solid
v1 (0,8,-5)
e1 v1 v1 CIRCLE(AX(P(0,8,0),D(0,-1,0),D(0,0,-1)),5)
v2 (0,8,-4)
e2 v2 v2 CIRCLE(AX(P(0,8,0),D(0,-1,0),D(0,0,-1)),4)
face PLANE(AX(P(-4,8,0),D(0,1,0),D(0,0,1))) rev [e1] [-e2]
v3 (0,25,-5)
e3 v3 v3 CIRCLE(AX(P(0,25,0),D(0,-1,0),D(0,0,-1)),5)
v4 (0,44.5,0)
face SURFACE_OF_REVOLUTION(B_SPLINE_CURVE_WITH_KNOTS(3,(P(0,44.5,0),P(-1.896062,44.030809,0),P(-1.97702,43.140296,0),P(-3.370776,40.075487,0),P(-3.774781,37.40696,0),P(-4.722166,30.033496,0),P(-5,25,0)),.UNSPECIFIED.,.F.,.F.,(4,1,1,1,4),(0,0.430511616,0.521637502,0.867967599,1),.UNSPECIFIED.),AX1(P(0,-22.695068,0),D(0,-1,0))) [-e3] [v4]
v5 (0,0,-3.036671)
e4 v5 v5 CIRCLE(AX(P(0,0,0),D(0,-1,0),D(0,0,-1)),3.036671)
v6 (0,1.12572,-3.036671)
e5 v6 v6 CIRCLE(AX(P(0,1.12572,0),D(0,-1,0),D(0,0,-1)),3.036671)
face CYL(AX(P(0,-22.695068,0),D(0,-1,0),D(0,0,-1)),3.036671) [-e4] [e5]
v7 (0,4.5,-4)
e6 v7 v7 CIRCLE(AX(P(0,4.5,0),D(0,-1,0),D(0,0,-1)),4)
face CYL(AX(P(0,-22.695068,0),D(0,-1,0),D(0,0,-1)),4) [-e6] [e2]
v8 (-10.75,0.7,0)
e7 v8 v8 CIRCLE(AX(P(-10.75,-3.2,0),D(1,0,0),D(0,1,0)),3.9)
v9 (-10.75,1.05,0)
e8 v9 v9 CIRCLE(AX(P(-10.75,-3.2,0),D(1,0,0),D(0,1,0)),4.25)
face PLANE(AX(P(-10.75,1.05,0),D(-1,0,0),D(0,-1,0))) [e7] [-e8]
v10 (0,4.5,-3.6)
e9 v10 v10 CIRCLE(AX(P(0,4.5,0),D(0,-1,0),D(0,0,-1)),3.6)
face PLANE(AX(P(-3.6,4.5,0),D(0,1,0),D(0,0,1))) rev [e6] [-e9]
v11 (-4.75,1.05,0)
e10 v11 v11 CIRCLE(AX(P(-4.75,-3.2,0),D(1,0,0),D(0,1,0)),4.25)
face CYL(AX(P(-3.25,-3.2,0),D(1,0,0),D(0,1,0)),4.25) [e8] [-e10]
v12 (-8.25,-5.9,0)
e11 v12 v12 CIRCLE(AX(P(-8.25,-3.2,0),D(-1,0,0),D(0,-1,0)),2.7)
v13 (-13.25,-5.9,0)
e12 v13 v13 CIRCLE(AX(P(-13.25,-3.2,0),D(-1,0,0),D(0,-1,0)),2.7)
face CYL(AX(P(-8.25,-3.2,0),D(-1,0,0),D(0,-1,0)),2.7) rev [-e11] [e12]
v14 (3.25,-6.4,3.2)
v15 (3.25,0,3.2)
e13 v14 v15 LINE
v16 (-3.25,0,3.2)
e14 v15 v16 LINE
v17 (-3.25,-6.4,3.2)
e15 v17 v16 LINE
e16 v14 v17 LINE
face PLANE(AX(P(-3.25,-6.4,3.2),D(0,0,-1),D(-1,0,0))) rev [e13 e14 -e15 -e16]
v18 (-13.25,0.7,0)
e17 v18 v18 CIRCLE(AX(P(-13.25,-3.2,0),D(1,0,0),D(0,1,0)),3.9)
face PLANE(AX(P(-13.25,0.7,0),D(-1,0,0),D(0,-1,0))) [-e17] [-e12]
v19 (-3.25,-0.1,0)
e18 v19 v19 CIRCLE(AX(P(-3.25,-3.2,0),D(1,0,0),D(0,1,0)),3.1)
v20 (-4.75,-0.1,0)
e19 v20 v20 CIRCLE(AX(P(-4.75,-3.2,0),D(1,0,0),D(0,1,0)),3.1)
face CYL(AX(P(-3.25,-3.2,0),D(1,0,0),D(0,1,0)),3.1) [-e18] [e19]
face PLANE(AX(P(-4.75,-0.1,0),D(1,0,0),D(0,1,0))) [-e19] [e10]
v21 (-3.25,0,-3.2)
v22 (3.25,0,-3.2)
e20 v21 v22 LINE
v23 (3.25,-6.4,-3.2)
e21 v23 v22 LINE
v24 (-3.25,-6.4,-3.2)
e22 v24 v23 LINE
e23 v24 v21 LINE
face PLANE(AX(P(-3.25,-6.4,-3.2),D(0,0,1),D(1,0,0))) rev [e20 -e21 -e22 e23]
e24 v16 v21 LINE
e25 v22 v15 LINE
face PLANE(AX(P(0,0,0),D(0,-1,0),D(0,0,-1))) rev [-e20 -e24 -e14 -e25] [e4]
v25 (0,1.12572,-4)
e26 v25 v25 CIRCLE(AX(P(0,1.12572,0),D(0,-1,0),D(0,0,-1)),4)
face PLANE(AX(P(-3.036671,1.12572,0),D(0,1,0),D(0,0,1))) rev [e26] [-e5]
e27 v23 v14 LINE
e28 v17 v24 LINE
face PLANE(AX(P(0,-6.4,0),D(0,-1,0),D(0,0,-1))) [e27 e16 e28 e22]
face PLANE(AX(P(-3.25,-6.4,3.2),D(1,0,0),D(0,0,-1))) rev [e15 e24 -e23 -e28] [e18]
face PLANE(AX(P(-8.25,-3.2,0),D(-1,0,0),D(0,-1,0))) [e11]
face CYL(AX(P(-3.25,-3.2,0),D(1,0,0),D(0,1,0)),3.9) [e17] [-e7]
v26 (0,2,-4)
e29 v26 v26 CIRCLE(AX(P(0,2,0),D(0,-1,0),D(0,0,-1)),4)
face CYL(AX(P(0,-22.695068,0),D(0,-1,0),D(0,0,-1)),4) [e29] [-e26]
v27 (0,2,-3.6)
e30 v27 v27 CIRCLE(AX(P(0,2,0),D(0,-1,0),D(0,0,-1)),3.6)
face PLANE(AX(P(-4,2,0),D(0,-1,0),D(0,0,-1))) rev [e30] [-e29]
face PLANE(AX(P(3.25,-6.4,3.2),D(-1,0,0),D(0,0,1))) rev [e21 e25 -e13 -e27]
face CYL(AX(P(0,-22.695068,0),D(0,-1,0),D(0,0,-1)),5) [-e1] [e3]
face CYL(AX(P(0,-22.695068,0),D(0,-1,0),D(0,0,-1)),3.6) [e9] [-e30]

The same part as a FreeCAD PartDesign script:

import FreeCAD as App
import Part
import Sketcher

doc = App.newDocument("Part")
params = doc.addObject("Spreadsheet::Sheet", "Params")
for row, (alias, value) in enumerate([
    ("sketch1_width", "1 mm"),
    ("sketch1_height", "17 mm"),
    ("sketch1_width2", "0.4 mm"),
    ("sketch1_height2", "3.5 mm"),
    ("sketch1_height3", "2.5 mm"),
    ("revolution_angle", "360 deg"),
    ("sketch2_width", "6.5 mm"),
    ("sketch2_height", "6.4 mm"),
    ("pad1_length", "6.4 mm"),
    ("sketch3_width", "6 mm"),
    ("sketch3_width2", "10 mm"),
    ("sketch3_width3", "1.5 mm"),
    ("sketch3_height", "3.9 mm"),
    ("sketch3_height2", "3.1 mm"),
    ("revolution2_angle", "360 deg"),
    ("sketch4_diameter", "5.4 mm"),
    ("pocket1_length", "5 mm"),
], start=1):
    params.set(f"A{row}", alias)
    params.set(f"B{row}", "=" + value)
    params.setAlias(f"B{row}", alias)

body = doc.addObject("PartDesign::Body", "Body")

# Sketch on XY plane
sketch1 = body.newObject("Sketcher::SketchObject", "Sketch")
sketch1.AttachmentSupport = (doc.getObject("XY_Plane"), [""])
sketch1.MapMode = "FlatFace"
sketch1.addGeometry([
    Part.LineSegment(App.Vector(-3.036671, 0, 0), App.Vector(0, 0, 0)),  # 0
    Part.LineSegment(App.Vector(0, 0, 0), App.Vector(0, 44.5, 0)),  # 1
    Part.BSplineCurve([App.Vector(-5, 25, 0), App.Vector(-4.722166, 30.033496, 0), App.Vector(-3.774781, 37.40696, 0), App.Vector(-3.370776, 40.075487, 0), App.Vector(-1.97702, 43.140296, 0), App.Vector(-1.896062, 44.030809, 0), App.Vector(0, 44.5, 0)], [4, 1, 1, 1, 4], [0, 0.132032401, 0.478362498, 0.569488384, 1], False, 3, [1, 1, 1, 1, 1, 1, 1], False),  # 2
    Part.LineSegment(App.Vector(-5, 25, 0), App.Vector(-5, 8, 0)),  # 3
    Part.LineSegment(App.Vector(-5, 8, 0), App.Vector(-4, 8, 0)),  # 4
    Part.LineSegment(App.Vector(-4, 8, 0), App.Vector(-4, 4.5, 0)),  # 5
    Part.LineSegment(App.Vector(-4, 4.5, 0), App.Vector(-3.6, 4.5, 0)),  # 6
    Part.LineSegment(App.Vector(-3.6, 4.5, 0), App.Vector(-3.6, 2, 0)),  # 7
    Part.LineSegment(App.Vector(-3.6, 2, 0), App.Vector(-4, 2, 0)),  # 8
    Part.LineSegment(App.Vector(-4, 2, 0), App.Vector(-4, 1.12572, 0)),  # 9
    Part.LineSegment(App.Vector(-4, 1.12572, 0), App.Vector(-3.036671, 1.12572, 0)),  # 10
    Part.LineSegment(App.Vector(-3.036671, 1.12572, 0), App.Vector(-3.036671, 0, 0)),  # 11
], False)
sketch1.addConstraint([
    Sketcher.Constraint("Block", 2),
    Sketcher.Constraint("Coincident", 0, 2, 1, 1),
    Sketcher.Constraint("Coincident", 1, 2, 2, 2),
    Sketcher.Constraint("Coincident", 2, 1, 3, 1),
    Sketcher.Constraint("Coincident", 3, 2, 4, 1),
    Sketcher.Constraint("Coincident", 4, 2, 5, 1),
    Sketcher.Constraint("Coincident", 5, 2, 6, 1),
    Sketcher.Constraint("Coincident", 6, 2, 7, 1),
    Sketcher.Constraint("Coincident", 7, 2, 8, 1),
    Sketcher.Constraint("Coincident", 8, 2, 9, 1),
    Sketcher.Constraint("Coincident", 9, 2, 10, 1),
    Sketcher.Constraint("Coincident", 10, 2, 11, 1),
    Sketcher.Constraint("Coincident", 11, 2, 0, 1),
    Sketcher.Constraint("Horizontal", 0),
    Sketcher.Constraint("Vertical", 1),
    Sketcher.Constraint("Vertical", 3),
    Sketcher.Constraint("Horizontal", 4),
    Sketcher.Constraint("Vertical", 5),
    Sketcher.Constraint("Horizontal", 6),
    Sketcher.Constraint("Vertical", 7),
    Sketcher.Constraint("Horizontal", 8),
    Sketcher.Constraint("Vertical", 9),
    Sketcher.Constraint("Horizontal", 10),
    Sketcher.Constraint("Vertical", 11),
    Sketcher.Constraint("PointOnObject", 11, 2, -1),
    Sketcher.Constraint("Vertical", 5, 2, 8, 2),
    Sketcher.Constraint("DistanceX", 4, 1, 4, 2, 1.0),
    Sketcher.Constraint("DistanceY", 3, 2, 3, 1, 17.0),
    Sketcher.Constraint("DistanceX", 6, 1, 6, 2, 0.4),
    Sketcher.Constraint("DistanceY", 5, 2, 5, 1, 3.5),
    Sketcher.Constraint("DistanceY", 7, 2, 7, 1, 2.5),
    Sketcher.Constraint("DistanceX", 0, 1, 0, 2, 3.036671),
    Sketcher.Constraint("DistanceY", 9, 2, 9, 1, 0.87428),
])
sketch1.setExpression("Constraints[26]", "Params.sketch1_width")
sketch1.setExpression("Constraints[27]", "Params.sketch1_height")
sketch1.setExpression("Constraints[28]", "Params.sketch1_width2")
sketch1.setExpression("Constraints[29]", "Params.sketch1_height2")
sketch1.setExpression("Constraints[30]", "Params.sketch1_height3")
revolution = body.newObject("PartDesign::Revolution", "Revolution")
revolution.Profile = sketch1
revolution.ReferenceAxis = (sketch1, ["V_Axis"])
revolution.setExpression("Angle", "Params.revolution_angle")

# Sketch on XZ plane
sketch2 = body.newObject("Sketcher::SketchObject", "Sketch001")
sketch2.AttachmentSupport = (doc.getObject("XZ_Plane"), [""])
sketch2.MapMode = "FlatFace"
sketch2.addGeometry([
    Part.LineSegment(App.Vector(-3, 3, 0), App.Vector(-3, -3, 0)),
    Part.LineSegment(App.Vector(-3, -3, 0), App.Vector(3, -3, 0)),
    Part.LineSegment(App.Vector(3, -3, 0), App.Vector(3, 3, 0)),
    Part.LineSegment(App.Vector(3, 3, 0), App.Vector(-3, 3, 0)),
], False)
sketch2.addConstraint([
    Sketcher.Constraint("Coincident", 0, 2, 1, 1),
    Sketcher.Constraint("Coincident", 1, 2, 2, 1),
    Sketcher.Constraint("Coincident", 2, 2, 3, 1),
    Sketcher.Constraint("Coincident", 3, 2, 0, 1),
    Sketcher.Constraint("Vertical", 0),
    Sketcher.Constraint("Horizontal", 1),
    Sketcher.Constraint("Vertical", 2),
    Sketcher.Constraint("Horizontal", 3),
    Sketcher.Constraint("Symmetric", 0, 2, 2, 2, -1, 1),
    Sketcher.Constraint("DistanceX", 1, 1, 1, 2, 6.5),
    Sketcher.Constraint("DistanceY", 0, 2, 0, 1, 6.4),
])
sketch2.setExpression("Constraints[9]", "Params.sketch2_width")
sketch2.setExpression("Constraints[10]", "Params.sketch2_height")
pad1 = body.newObject("PartDesign::Pad", "Pad")
pad1.Profile = sketch2
pad1.setExpression("Length", "Params.pad1_length")

# Sketch on XY plane
sketch3 = body.newObject("Sketcher::SketchObject", "Sketch002")
sketch3.AttachmentSupport = (doc.getObject("XY_Plane"), [""])
sketch3.MapMode = "FlatFace"
sketch3.addGeometry([
    Part.LineSegment(App.Vector(-3.25, -0.1, 0), App.Vector(-4.75, -0.1, 0)),  # 0
    Part.LineSegment(App.Vector(-4.75, -0.1, 0), App.Vector(-4.75, 1.05, 0)),  # 1
    Part.LineSegment(App.Vector(-4.75, 1.05, 0), App.Vector(-10.75, 1.05, 0)),  # 2
    Part.LineSegment(App.Vector(-10.75, 1.05, 0), App.Vector(-10.75, 0.7, 0)),  # 3
    Part.LineSegment(App.Vector(-10.75, 0.7, 0), App.Vector(-13.25, 0.7, 0)),  # 4
    Part.LineSegment(App.Vector(-13.25, 0.7, 0), App.Vector(-13.25, -3.2, 0)),  # 5
    Part.LineSegment(App.Vector(-13.25, -3.2, 0), App.Vector(-3.25, -3.2, 0)),  # 6
    Part.LineSegment(App.Vector(-3.25, -3.2, 0), App.Vector(-3.25, -0.1, 0)),  # 7
], False)
sketch3.addGeometry(Part.LineSegment(App.Vector(-3.25, -3.2, 0), App.Vector(-13.25, -3.2, 0)), True)  # axis
sketch3.addConstraint([
    Sketcher.Constraint("Coincident", 0, 2, 1, 1),
    Sketcher.Constraint("Coincident", 1, 2, 2, 1),
    Sketcher.Constraint("Coincident", 2, 2, 3, 1),
    Sketcher.Constraint("Coincident", 3, 2, 4, 1),
    Sketcher.Constraint("Coincident", 4, 2, 5, 1),
    Sketcher.Constraint("Coincident", 5, 2, 6, 1),
    Sketcher.Constraint("Coincident", 6, 2, 7, 1),
    Sketcher.Constraint("Coincident", 7, 2, 0, 1),
    Sketcher.Constraint("Horizontal", 0),
    Sketcher.Constraint("Vertical", 1),
    Sketcher.Constraint("Horizontal", 2),
    Sketcher.Constraint("Vertical", 3),
    Sketcher.Constraint("Horizontal", 4),
    Sketcher.Constraint("Vertical", 5),
    Sketcher.Constraint("Horizontal", 6),
    Sketcher.Constraint("Vertical", 7),
    Sketcher.Constraint("Horizontal", 8),
    Sketcher.Constraint("Coincident", 8, 1, 6, 2),
    Sketcher.Constraint("Vertical", 4, 2, 8, 2),
    Sketcher.Constraint("DistanceX", 2, 2, 2, 1, 6.0),
    Sketcher.Constraint("DistanceX", 6, 1, 6, 2, 10.0),
    Sketcher.Constraint("DistanceX", 0, 2, 0, 1, 1.5),
    Sketcher.Constraint("DistanceY", 5, 2, 5, 1, 3.9),
    Sketcher.Constraint("DistanceY", 7, 1, 7, 2, 3.1),
    Sketcher.Constraint("DistanceY", 1, 1, 1, 2, 1.15),
    Sketcher.Constraint("DistanceY", 0, 2, -1, 1, 0.1),
    Sketcher.Constraint("DistanceX", 0, 2, -1, 1, 4.75),
])
sketch3.setExpression("Constraints[19]", "Params.sketch3_width")
sketch3.setExpression("Constraints[20]", "Params.sketch3_width2")
sketch3.setExpression("Constraints[21]", "Params.sketch3_width3")
sketch3.setExpression("Constraints[22]", "Params.sketch3_height")
sketch3.setExpression("Constraints[23]", "Params.sketch3_height2")
revolution2 = body.newObject("PartDesign::Revolution", "Revolution001")
revolution2.Profile = sketch3
revolution2.ReferenceAxis = (sketch3, ["Axis0"])
revolution2.setExpression("Angle", "Params.revolution2_angle")

# Sketch on YZ plane
sketch4 = body.newObject("Sketcher::SketchObject", "Sketch003")
sketch4.AttachmentSupport = (doc.getObject("YZ_Plane"), [""])
sketch4.MapMode = "FlatFace"
sketch4.AttachmentOffset = App.Placement(App.Vector(0, 0, -13.25), App.Rotation())
sketch4.addGeometry(Part.Circle(App.Vector(-3.2, 0, 0), App.Vector(0, 0, 1), 2.7), False)
sketch4.addConstraint([
    Sketcher.Constraint("PointOnObject", 0, 3, -1),
    Sketcher.Constraint("Diameter", 0, 5.4),
    Sketcher.Constraint("DistanceX", 0, 3, -1, 1, 3.2),
])
sketch4.setExpression("Constraints[1]", "Params.sketch4_diameter")
pocket1 = body.newObject("PartDesign::Pocket", "Pocket")
pocket1.Profile = sketch4
pocket1.setExpression("Length", "Params.pocket1_length")
pocket1.Reversed = True

doc.recompute()
